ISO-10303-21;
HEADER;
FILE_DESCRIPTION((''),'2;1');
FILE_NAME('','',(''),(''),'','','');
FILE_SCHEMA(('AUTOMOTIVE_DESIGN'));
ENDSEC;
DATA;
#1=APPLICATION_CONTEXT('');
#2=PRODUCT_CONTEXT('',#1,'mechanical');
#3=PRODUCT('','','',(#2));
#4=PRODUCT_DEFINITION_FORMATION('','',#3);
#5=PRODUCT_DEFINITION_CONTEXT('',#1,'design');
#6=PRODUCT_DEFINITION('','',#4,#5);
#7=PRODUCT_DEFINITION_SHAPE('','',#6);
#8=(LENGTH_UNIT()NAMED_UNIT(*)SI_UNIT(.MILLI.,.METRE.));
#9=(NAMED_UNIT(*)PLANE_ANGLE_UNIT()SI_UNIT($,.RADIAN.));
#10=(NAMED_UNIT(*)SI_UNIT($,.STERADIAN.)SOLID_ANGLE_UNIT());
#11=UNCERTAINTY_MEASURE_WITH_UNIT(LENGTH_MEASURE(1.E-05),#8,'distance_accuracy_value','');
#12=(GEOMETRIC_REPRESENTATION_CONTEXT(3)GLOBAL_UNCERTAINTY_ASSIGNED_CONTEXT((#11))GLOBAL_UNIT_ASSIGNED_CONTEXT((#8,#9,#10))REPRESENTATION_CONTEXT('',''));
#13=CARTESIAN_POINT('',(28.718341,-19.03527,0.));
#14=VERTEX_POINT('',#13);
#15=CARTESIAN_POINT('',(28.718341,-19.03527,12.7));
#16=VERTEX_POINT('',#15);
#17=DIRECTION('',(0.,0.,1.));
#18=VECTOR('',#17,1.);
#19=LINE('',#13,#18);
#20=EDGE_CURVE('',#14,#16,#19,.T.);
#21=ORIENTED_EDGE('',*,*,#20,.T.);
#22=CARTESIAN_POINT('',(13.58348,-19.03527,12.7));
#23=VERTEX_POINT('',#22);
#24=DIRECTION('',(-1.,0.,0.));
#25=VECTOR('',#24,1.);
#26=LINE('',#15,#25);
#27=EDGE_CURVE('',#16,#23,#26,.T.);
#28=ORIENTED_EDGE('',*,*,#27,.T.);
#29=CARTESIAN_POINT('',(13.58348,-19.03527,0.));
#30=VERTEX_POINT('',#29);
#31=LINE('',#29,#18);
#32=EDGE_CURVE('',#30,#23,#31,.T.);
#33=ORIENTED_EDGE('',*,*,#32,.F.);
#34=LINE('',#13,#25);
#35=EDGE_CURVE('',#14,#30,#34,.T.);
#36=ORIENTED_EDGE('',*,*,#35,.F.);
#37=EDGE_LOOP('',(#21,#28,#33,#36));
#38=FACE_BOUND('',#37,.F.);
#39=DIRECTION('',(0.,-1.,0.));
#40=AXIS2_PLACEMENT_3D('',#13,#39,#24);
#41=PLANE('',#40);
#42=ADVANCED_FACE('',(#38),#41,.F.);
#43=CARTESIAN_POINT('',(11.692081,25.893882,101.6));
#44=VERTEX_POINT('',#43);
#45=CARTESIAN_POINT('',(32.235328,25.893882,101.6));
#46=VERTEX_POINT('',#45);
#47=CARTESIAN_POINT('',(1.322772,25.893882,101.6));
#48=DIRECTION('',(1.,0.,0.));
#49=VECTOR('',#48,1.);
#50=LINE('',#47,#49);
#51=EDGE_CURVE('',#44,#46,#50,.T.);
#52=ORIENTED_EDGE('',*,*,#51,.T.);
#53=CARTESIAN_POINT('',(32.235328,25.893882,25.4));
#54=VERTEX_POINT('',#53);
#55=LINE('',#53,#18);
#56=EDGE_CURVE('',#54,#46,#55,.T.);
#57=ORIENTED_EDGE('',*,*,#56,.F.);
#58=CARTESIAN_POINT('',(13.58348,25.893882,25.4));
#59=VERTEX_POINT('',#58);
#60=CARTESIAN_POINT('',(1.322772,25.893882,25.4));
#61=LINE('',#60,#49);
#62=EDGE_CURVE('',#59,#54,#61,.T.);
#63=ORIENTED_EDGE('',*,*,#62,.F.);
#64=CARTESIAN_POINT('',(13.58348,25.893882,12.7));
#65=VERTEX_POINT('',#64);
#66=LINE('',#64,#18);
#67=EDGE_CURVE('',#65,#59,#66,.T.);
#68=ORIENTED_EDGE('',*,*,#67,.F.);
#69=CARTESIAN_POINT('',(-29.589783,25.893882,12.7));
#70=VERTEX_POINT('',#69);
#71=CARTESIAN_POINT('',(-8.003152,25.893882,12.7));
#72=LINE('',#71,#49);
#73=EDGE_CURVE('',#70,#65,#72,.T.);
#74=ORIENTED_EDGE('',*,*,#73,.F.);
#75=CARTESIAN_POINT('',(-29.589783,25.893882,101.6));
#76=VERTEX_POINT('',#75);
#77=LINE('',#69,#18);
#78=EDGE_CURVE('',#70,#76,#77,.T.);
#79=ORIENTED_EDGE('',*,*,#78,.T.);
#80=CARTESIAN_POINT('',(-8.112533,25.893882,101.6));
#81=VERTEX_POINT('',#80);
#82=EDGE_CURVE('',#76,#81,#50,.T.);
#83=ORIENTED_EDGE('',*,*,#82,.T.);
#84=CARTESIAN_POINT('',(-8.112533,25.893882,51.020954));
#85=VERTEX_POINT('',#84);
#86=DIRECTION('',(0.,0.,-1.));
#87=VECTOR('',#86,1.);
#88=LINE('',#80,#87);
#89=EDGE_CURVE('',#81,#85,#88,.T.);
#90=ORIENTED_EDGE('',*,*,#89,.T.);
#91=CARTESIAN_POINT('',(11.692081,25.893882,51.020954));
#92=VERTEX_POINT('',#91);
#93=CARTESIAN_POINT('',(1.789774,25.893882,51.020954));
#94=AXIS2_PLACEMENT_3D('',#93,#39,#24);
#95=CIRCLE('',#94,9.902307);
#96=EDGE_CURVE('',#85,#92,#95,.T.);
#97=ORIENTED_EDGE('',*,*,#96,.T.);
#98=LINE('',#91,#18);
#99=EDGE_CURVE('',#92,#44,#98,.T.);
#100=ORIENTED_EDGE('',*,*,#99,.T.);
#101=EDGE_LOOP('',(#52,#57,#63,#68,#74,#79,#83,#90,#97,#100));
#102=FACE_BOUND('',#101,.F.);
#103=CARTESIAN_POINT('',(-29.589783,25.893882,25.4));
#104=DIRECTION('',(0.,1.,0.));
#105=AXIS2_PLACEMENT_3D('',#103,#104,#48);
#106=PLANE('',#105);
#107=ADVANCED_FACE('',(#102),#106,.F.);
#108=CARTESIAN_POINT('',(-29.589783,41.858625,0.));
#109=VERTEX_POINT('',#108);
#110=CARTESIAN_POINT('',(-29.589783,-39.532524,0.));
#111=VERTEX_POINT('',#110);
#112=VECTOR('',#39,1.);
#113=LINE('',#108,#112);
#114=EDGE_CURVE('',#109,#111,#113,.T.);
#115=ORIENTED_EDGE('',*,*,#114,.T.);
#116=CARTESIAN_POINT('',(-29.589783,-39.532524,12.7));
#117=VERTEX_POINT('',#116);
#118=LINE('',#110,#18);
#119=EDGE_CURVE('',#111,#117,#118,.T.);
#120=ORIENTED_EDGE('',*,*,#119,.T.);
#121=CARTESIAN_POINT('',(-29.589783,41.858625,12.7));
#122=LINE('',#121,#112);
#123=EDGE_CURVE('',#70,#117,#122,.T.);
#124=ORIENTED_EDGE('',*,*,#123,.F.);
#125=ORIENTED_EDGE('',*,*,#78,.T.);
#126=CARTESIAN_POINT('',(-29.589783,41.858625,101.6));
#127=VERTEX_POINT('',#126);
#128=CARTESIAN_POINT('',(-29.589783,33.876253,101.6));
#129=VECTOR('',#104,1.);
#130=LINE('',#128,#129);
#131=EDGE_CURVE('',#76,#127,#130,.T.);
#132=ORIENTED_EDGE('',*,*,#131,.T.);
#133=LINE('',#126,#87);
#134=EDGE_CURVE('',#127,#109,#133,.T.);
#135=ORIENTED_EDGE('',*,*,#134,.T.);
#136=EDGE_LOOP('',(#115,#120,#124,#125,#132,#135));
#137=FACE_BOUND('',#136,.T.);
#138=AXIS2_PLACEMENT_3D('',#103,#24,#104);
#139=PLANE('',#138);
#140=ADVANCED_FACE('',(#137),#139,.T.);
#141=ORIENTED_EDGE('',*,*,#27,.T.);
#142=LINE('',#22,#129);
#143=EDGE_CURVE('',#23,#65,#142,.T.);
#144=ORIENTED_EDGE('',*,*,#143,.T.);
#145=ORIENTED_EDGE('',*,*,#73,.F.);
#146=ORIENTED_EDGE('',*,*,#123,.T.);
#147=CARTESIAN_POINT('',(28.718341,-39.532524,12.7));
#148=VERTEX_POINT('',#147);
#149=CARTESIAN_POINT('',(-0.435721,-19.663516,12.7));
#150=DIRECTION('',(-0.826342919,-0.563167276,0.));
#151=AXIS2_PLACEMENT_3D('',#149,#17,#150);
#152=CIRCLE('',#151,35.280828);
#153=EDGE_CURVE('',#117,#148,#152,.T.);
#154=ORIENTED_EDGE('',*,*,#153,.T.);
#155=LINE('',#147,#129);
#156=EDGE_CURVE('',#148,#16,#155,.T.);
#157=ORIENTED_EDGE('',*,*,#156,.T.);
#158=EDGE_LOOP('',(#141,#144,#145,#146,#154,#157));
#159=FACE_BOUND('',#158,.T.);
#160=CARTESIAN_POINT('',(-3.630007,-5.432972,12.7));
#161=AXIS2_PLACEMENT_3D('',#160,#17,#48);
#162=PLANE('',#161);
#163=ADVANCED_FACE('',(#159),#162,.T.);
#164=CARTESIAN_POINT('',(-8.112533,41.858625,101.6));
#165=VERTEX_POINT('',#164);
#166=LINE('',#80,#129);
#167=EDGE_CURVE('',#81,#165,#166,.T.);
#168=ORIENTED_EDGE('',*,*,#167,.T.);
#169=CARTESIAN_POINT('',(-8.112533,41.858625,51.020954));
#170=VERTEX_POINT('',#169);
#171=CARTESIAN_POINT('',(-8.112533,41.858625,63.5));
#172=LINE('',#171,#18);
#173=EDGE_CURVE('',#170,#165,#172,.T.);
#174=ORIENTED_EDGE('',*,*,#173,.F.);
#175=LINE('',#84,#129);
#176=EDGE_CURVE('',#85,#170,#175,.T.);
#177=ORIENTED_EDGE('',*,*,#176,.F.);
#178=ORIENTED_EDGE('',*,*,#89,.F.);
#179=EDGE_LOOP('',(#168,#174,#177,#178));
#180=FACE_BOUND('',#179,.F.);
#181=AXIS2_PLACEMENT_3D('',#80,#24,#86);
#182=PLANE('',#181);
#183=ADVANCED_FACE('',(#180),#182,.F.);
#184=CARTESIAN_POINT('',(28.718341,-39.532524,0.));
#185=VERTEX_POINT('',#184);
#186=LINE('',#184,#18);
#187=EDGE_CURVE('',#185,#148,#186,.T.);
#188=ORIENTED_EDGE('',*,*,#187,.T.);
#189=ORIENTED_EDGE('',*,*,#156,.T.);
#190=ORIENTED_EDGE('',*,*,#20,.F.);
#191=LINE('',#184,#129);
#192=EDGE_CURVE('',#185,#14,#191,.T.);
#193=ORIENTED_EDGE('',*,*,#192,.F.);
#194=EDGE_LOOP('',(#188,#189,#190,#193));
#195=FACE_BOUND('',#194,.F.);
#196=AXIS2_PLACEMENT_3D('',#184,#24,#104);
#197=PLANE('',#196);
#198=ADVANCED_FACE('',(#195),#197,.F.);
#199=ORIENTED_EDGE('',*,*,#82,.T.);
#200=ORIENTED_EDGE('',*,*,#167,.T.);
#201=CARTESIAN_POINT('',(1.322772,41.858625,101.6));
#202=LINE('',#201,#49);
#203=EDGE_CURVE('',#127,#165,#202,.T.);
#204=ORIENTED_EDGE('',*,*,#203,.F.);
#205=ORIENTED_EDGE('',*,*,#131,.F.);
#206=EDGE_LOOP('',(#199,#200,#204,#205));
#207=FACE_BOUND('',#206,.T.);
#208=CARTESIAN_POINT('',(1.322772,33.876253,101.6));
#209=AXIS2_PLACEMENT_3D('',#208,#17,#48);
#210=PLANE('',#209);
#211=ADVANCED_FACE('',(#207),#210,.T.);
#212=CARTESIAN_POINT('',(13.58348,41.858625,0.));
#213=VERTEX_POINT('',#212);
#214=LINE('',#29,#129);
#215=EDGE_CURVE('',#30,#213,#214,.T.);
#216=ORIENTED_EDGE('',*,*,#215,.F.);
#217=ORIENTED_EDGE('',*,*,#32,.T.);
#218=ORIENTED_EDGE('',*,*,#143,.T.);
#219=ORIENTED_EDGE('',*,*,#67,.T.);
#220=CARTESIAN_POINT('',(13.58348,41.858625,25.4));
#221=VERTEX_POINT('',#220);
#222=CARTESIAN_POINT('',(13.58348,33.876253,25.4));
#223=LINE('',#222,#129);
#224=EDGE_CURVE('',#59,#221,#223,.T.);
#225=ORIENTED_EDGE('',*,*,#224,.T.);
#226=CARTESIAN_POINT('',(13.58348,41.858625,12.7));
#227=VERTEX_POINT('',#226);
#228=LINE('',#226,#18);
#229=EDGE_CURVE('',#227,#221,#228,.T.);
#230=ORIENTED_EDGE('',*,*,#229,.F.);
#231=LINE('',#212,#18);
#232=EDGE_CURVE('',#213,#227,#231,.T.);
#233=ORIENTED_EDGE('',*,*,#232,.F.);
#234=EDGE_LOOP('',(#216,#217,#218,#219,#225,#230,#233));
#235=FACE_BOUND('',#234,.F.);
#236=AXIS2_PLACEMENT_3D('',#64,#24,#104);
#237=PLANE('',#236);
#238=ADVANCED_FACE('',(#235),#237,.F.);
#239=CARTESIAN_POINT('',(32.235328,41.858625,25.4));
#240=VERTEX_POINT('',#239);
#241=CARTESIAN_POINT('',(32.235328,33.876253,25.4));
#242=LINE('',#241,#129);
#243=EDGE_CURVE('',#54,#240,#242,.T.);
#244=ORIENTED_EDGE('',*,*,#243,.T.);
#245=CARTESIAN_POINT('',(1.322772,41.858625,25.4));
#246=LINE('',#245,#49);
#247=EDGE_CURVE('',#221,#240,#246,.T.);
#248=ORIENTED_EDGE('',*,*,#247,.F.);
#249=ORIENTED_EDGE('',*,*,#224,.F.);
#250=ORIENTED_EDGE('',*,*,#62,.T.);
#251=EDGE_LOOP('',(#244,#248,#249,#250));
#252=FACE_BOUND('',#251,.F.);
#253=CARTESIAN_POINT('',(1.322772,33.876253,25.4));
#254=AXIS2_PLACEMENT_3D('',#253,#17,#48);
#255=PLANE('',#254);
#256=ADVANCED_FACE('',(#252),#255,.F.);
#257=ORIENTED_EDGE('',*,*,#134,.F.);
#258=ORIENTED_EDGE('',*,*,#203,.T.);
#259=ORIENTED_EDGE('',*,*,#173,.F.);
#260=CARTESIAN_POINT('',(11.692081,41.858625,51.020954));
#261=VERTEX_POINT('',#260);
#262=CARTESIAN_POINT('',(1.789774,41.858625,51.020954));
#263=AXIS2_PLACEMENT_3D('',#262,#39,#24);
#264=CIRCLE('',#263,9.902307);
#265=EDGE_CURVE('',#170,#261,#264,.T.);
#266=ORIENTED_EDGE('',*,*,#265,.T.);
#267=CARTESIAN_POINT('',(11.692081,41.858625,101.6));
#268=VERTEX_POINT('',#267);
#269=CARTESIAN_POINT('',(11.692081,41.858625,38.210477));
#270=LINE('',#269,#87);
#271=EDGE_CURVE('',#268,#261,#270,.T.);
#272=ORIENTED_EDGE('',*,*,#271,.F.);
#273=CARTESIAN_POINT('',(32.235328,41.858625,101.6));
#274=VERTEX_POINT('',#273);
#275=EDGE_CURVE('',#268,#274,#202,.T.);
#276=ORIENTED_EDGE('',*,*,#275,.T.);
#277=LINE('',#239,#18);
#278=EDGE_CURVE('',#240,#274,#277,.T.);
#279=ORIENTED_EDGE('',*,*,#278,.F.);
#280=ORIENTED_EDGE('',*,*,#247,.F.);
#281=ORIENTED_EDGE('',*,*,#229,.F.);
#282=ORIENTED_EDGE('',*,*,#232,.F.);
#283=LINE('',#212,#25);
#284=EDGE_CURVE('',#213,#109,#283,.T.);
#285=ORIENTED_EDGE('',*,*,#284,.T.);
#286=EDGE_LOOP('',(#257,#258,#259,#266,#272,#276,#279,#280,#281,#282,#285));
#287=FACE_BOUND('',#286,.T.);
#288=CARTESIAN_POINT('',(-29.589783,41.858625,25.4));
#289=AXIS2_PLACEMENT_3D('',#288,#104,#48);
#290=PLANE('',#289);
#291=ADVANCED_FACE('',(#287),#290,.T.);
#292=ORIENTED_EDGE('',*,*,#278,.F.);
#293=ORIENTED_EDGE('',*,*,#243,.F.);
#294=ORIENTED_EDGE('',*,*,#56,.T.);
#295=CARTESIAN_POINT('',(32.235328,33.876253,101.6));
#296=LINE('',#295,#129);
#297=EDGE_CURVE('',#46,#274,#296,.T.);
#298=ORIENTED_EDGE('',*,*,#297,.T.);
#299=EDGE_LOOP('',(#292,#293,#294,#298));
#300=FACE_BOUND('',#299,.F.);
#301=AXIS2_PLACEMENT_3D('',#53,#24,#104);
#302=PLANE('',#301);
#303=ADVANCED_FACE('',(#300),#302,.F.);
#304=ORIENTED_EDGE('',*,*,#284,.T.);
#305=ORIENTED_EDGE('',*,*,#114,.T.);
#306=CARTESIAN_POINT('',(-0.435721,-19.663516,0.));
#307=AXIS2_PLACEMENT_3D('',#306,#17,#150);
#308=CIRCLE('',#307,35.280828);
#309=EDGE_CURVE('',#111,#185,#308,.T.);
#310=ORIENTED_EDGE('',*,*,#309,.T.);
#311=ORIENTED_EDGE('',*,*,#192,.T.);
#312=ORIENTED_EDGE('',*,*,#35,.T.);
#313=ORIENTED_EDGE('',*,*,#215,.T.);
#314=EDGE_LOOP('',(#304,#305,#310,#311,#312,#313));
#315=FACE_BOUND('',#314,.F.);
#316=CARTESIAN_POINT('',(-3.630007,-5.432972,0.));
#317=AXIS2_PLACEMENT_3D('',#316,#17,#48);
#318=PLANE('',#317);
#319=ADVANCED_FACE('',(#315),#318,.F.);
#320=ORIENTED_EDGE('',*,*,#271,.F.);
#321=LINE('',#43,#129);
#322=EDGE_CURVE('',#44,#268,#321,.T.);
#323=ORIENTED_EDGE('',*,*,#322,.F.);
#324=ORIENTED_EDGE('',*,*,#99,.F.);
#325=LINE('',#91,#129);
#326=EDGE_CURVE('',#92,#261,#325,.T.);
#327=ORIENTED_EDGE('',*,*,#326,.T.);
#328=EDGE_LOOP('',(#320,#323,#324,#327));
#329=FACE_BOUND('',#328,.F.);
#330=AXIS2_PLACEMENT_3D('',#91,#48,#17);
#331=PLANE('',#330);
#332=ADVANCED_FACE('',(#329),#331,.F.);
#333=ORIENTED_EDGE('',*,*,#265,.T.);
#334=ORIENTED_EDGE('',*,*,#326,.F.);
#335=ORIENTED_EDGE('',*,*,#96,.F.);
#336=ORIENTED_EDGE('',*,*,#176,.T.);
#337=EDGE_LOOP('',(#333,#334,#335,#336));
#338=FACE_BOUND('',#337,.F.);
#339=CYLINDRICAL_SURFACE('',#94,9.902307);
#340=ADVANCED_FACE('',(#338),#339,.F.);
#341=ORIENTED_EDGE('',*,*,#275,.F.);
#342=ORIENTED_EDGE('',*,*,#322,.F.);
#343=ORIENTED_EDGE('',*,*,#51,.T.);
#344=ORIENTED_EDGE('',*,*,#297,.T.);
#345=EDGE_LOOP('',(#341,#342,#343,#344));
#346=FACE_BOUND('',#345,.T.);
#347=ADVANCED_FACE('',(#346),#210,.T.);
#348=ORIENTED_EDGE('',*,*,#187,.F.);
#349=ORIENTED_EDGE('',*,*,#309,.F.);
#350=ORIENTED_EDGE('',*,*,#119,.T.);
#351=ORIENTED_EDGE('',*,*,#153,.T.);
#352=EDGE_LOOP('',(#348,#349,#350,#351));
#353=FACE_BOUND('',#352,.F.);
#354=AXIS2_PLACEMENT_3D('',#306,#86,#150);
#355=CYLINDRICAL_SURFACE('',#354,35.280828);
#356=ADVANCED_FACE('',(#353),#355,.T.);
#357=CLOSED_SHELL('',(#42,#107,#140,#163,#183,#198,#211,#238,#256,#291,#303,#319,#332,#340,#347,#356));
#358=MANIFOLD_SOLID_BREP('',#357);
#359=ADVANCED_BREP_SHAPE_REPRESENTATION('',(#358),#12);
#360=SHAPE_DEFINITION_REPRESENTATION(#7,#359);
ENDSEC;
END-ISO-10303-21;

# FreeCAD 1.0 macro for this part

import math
import FreeCAD as App
import Part
import Sketcher

V = App.Vector
Q = App.Units.Quantity

doc = App.newDocument("Part")
params = doc.addObject("Spreadsheet::Sheet", "Params")
for row, (alias, value) in enumerate([
    ("pad1_length", "0.5 in"),
    ("pad2_length", "0.5 in"),
    ("pad3_length", "3 in"),
    ("pocket1_length", "1 in"),
], start=1):
    params.set(f"A{row}", alias)
    params.set(f"B{row}", "=" + value)
    params.setAlias(f"B{row}", alias)

body = doc.addObject("PartDesign::Body", "Body")

sketch1 = body.newObject("Sketcher::SketchObject", "Sketch")
sketch1.AttachmentSupport = (doc.getObject("XY_Plane"), [""])
sketch1.MapMode = "FlatFace"
sketch1.addGeometry([
    Part.LineSegment(V(14, 42, 0), V(-30, 42, 0)),
    Part.LineSegment(V(-30, 42, 0), V(-30, -40, 0)),
    Part.ArcOfCircle(Part.Circle(V(0, -20, 0), V(0, 0, 1), 35), math.radians(-146), math.radians(-34)),
    Part.LineSegment(V(29, -40, 0), V(29, -19, 0)),
    Part.LineSegment(V(29, -19, 0), V(14, -19, 0)),
    Part.LineSegment(V(14, -19, 0), V(14, 42, 0)),
], False)
sketch1.addConstraint([
    Sketcher.Constraint("Coincident", 0, 2, 1, 1),
    Sketcher.Constraint("Coincident", 1, 2, 2, 1),
    Sketcher.Constraint("Coincident", 2, 2, 3, 1),
    Sketcher.Constraint("Coincident", 3, 2, 4, 1),
    Sketcher.Constraint("Coincident", 4, 2, 5, 1),
    Sketcher.Constraint("Coincident", 5, 2, 0, 1),
    Sketcher.Constraint("Horizontal", 0),
    Sketcher.Constraint("Vertical", 1),
    Sketcher.Constraint("Vertical", 3),
    Sketcher.Constraint("Horizontal", 4),
    Sketcher.Constraint("Vertical", 5),
    Sketcher.Constraint("Horizontal", 1, 2, 2, 2),
    Sketcher.Constraint("Radius", 2, 35.280828),
    Sketcher.Constraint("DistanceX", 4, 2, 4, 1, 15.134861),
    Sketcher.Constraint("DistanceY", 1, 2, 1, 1, 81.391148),
    Sketcher.Constraint("DistanceX", 2, 3, 4, 2, 14.019202),
    Sketcher.Constraint("DistanceY", 3, 1, 3, 2, 20.497253),
    Sketcher.Constraint("DistanceX", 2, 3, -1, 1, 0.435721),
    Sketcher.Constraint("DistanceY", 3, 2, -1, 1, 19.03527),
])
pad1 = body.newObject("PartDesign::Pad", "Pad")
pad1.Profile = sketch1
pad1.setExpression("Length", "Params.pad1_length")

sketch2 = body.newObject("Sketcher::SketchObject", "Sketch001")
sketch2.AttachmentSupport = (doc.getObject("XY_Plane"), [""])
sketch2.MapMode = "FlatFace"
sketch2.AttachmentOffset = App.Placement(V(0, 0, 0.5 * 25.4), App.Rotation())
sketch2.addGeometry([
    Part.LineSegment(V(-30, 42, 0), V(-30, 26, 0)),
    Part.LineSegment(V(-30, 26, 0), V(14, 26, 0)),
    Part.LineSegment(V(14, 26, 0), V(14, 42, 0)),
    Part.LineSegment(V(14, 42, 0), V(-30, 42, 0)),
], False)
sketch2.addConstraint([
    Sketcher.Constraint("Coincident", 0, 2, 1, 1),
    Sketcher.Constraint("Coincident", 1, 2, 2, 1),
    Sketcher.Constraint("Coincident", 2, 2, 3, 1),
    Sketcher.Constraint("Coincident", 3, 2, 0, 1),
    Sketcher.Constraint("Vertical", 0),
    Sketcher.Constraint("Horizontal", 1),
    Sketcher.Constraint("Vertical", 2),
    Sketcher.Constraint("Horizontal", 3),
    Sketcher.Constraint("DistanceX", 1, 1, 1, 2, 43.173264),
    Sketcher.Constraint("DistanceY", 0, 2, 0, 1, 15.964743),
    Sketcher.Constraint("DistanceY", -1, 1, 0, 2, 25.893882),
    Sketcher.Constraint("DistanceX", -1, 1, 1, 2, 13.58348),
])
pad2 = body.newObject("PartDesign::Pad", "Pad001")
pad2.Profile = sketch2
pad2.setExpression("Length", "Params.pad2_length")

sketch3 = body.newObject("Sketcher::SketchObject", "Sketch002")
sketch3.AttachmentSupport = (doc.getObject("XY_Plane"), [""])
sketch3.MapMode = "FlatFace"
sketch3.AttachmentOffset = App.Placement(V(0, 0, 1 * 25.4), App.Rotation())
sketch3.addGeometry([
    Part.LineSegment(V(-30, 42, 0), V(-30, 26, 0)),
    Part.LineSegment(V(-30, 26, 0), V(32, 26, 0)),
    Part.LineSegment(V(32, 26, 0), V(32, 42, 0)),
    Part.LineSegment(V(32, 42, 0), V(-30, 42, 0)),
], False)
sketch3.addConstraint([
    Sketcher.Constraint("Coincident", 0, 2, 1, 1),
    Sketcher.Constraint("Coincident", 1, 2, 2, 1),
    Sketcher.Constraint("Coincident", 2, 2, 3, 1),
    Sketcher.Constraint("Coincident", 3, 2, 0, 1),
    Sketcher.Constraint("Vertical", 0),
    Sketcher.Constraint("Horizontal", 1),
    Sketcher.Constraint("Vertical", 2),
    Sketcher.Constraint("Horizontal", 3),
    Sketcher.Constraint("DistanceX", 1, 1, 1, 2, 61.825112),
    Sketcher.Constraint("DistanceY", 0, 2, 0, 1, 15.964743),
    Sketcher.Constraint("DistanceY", -1, 1, 0, 2, 25.893882),
    Sketcher.Constraint("DistanceX", -1, 1, 1, 2, 32.235328),
])
pad3 = body.newObject("PartDesign::Pad", "Pad002")
pad3.Profile = sketch3
pad3.setExpression("Length", "Params.pad3_length")

sketch4 = body.newObject("Sketcher::SketchObject", "Sketch003")
sketch4.AttachmentSupport = (doc.getObject("XZ_Plane"), [""])
sketch4.MapMode = "FlatFace"
sketch4.AttachmentOffset = App.Placement(V(0, 0, -25.893882), App.Rotation())
sketch4.addGeometry([
    Part.LineSegment(V(12, 102, 0), V(-8, 102, 0)),
    Part.LineSegment(V(-8, 102, 0), V(-8, 51, 0)),
    Part.ArcOfCircle(Part.Circle(V(2, 51, 0), V(0, 0, 1), 10), math.radians(180), math.radians(360)),
    Part.LineSegment(V(12, 51, 0), V(12, 102, 0)),
], False)
sketch4.addConstraint([
    Sketcher.Constraint("Coincident", 0, 2, 1, 1),
    Sketcher.Constraint("Tangent", 1, 2, 2, 1),
    Sketcher.Constraint("Tangent", 2, 2, 3, 1),
    Sketcher.Constraint("Coincident", 3, 2, 0, 1),
    Sketcher.Constraint("Horizontal", 0),
    Sketcher.Constraint("Vertical", 1),
    Sketcher.Constraint("Vertical", 3),
    Sketcher.Constraint("DistanceY", -1, 1, 0, 2, Q("4 in")),
    Sketcher.Constraint("Radius", 2, 9.902307),
    Sketcher.Constraint("DistanceY", 1, 2, 1, 1, 50.579046),
    Sketcher.Constraint("DistanceX", -1, 1, 2, 2, 11.692081),
])
pocket1 = body.newObject("PartDesign::Pocket", "Pocket")
pocket1.Profile = sketch4
pocket1.setExpression("Length", "Params.pocket1_length")

doc.recompute()
